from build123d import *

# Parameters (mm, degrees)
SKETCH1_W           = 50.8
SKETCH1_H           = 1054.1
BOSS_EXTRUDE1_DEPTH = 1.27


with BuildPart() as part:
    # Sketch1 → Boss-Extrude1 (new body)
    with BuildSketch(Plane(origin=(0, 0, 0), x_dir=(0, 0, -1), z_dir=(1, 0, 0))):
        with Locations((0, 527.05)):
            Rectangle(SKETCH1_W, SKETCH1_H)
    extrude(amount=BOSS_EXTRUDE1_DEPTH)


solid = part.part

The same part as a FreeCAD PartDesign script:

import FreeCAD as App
import Part
import Sketcher
from FreeCAD import Vector
Q = App.Units.Quantity


def add_polygon(sketch, points):
    """Adds a closed chain of lines whose ends are joined by coincident constraints."""
    first, n = sketch.GeometryCount, len(points)
    for a, b in zip(points, points[1:] + points[:1]):
        sketch.addGeometry(Part.LineSegment(App.Vector(*a, 0), App.Vector(*b, 0)), False)
    for i in range(n):
        sketch.addConstraint(Sketcher.Constraint("Coincident", first + i, 2, first + (i + 1) % n, 1))

doc = App.newDocument("Part")
body = doc.addObject("PartDesign::Body", "Body")

# Sketch on YZ plane
sketch1 = body.newObject("Sketcher::SketchObject", "Sketch")
sketch1.AttachmentSupport = (doc.getObject("YZ_Plane"), [""])
sketch1.MapMode = "FlatFace"
add_polygon(sketch1, [(1054, 25), (0, 25), (0, -25), (1054, -25)])  # lines 0-3
sketch1.addConstraint(Sketcher.Constraint("Horizontal", 0))
sketch1.addConstraint(Sketcher.Constraint("Vertical", 1))
sketch1.addConstraint(Sketcher.Constraint("Horizontal", 2))
sketch1.addConstraint(Sketcher.Constraint("Vertical", 3))
sketch1.addConstraint(Sketcher.Constraint("Symmetric", 0, 2, 1, 2, -1, 1))
sketch1.addConstraint(Sketcher.Constraint("DistanceY", 1, 2, 1, 1, Q("2 in")))
sketch1.addConstraint(Sketcher.Constraint("DistanceX", 0, 2, 0, 1, Q("41.5 in")))
pad1 = body.newObject("PartDesign::Pad", "Pad")
pad1.Profile = sketch1
pad1.Length = Q("0.05 in")

doc.recompute()
